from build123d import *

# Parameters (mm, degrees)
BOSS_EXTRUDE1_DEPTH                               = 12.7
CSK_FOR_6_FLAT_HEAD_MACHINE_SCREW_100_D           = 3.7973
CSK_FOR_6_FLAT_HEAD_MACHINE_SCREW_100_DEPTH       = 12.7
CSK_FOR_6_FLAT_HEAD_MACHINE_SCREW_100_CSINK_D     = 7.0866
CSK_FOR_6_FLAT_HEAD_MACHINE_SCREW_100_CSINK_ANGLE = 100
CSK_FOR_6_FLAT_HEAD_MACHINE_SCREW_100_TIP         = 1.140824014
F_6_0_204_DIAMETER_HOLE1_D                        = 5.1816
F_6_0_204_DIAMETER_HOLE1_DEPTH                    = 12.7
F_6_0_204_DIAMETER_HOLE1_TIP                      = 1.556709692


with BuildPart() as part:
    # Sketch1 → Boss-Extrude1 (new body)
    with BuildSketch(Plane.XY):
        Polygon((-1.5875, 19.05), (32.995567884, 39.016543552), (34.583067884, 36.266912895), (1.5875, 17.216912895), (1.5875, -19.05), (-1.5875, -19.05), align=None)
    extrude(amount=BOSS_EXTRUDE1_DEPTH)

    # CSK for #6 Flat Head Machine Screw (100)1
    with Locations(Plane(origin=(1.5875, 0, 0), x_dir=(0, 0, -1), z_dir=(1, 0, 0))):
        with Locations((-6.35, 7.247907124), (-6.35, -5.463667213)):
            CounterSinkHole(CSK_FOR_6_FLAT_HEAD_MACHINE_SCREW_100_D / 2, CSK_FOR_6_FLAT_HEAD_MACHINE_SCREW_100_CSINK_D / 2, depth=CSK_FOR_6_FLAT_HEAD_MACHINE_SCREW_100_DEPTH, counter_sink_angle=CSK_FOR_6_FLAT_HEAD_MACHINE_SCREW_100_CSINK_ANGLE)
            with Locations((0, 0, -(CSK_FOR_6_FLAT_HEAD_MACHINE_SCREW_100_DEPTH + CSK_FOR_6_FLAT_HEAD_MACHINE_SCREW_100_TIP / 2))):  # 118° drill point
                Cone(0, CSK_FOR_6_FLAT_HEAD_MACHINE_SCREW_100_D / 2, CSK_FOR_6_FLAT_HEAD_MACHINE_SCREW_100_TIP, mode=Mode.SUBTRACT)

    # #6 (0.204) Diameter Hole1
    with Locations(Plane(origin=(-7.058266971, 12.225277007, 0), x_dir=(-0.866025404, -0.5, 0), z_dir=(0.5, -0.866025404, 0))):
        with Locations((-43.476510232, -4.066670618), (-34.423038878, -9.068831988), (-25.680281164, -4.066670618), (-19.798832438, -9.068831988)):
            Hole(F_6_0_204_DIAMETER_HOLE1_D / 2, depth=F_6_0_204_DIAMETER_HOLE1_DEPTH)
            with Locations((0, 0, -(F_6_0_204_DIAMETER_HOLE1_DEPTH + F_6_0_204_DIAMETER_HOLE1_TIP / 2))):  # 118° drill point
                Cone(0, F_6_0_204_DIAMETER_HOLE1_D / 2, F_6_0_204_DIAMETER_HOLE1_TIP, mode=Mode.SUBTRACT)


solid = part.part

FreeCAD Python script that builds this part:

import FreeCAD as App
import Part
import Sketcher

V = App.Vector
Q = App.Units.Quantity

doc = App.newDocument("Part")
params = doc.addObject("Spreadsheet::Sheet", "Params")
for row, (alias, value) in enumerate([
    ("sketch1_height", "1.5 in"),
    ("sketch1_length", "1.5 in"),
    ("sketch1_width", "0.125 in"),
    ("sketch1_length2", "0.125 in"),
    ("pad1_length", "0.5 in"),
    ("hole_diameter", "0.1495 in"),
    ("hole_depth", "0.5 in"),
    ("hole_csink_diameter", "0.279 in"),
    ("sketch3_diameter", "0.204 in"),
    ("hole2_diameter", "0.204 in"),
    ("hole2_depth", "0.5 in"),
], start=1):
    params.set(f"A{row}", alias)
    params.set(f"B{row}", "=" + value)
    params.setAlias(f"B{row}", alias)

body = doc.addObject("PartDesign::Body", "Body")

sketch1 = body.newObject("Sketcher::SketchObject", "Sketch")
sketch1.AttachmentSupport = (doc.getObject("XY_Plane"), [""])
sketch1.MapMode = "FlatFace"
sketch1.addGeometry(Part.LineSegment(V(32.995568, 39.016544, 0), V(-1.5875, 19.05, 0)), False)
sketch1.addGeometry(Part.LineSegment(V(-1.5875, 19.05, 0), V(-1.5875, -19.05, 0)), False)
sketch1.addGeometry(Part.LineSegment(V(-1.5875, -19.05, 0), V(1.5875, -19.05, 0)), False)
sketch1.addGeometry(Part.LineSegment(V(1.5875, -19.05, 0), V(1.5875, 17.216913, 0)), False)
sketch1.addGeometry(Part.LineSegment(V(1.5875, 17.216913, 0), V(34.583068, 36.266913, 0)), False)
sketch1.addGeometry(Part.LineSegment(V(34.583068, 36.266913, 0), V(32.995568, 39.016544, 0)), False)
sketch1.addConstraint(Sketcher.Constraint("Coincident", 0, 2, 1, 1))
sketch1.addConstraint(Sketcher.Constraint("Coincident", 1, 2, 2, 1))
sketch1.addConstraint(Sketcher.Constraint("Coincident", 2, 2, 3, 1))
sketch1.addConstraint(Sketcher.Constraint("Coincident", 3, 2, 4, 1))
sketch1.addConstraint(Sketcher.Constraint("Coincident", 4, 2, 5, 1))
sketch1.addConstraint(Sketcher.Constraint("Coincident", 5, 2, 0, 1))
sketch1.addConstraint(Sketcher.Constraint("Vertical", 1))
sketch1.addConstraint(Sketcher.Constraint("Horizontal", 2))
sketch1.addConstraint(Sketcher.Constraint("Vertical", 3))
sketch1.addConstraint(Sketcher.Constraint("Symmetric", 0, 2, 2, 2, -1, 1))
sketch1.addConstraint(Sketcher.Constraint("Parallel", 0, 4))
sketch1.addConstraint(Sketcher.Constraint("Perpendicular", 4, 5))
sketch1.addConstraint(Sketcher.Constraint("DistanceY", 1, 2, 1, 1, Q("1.5 in")))
sketch1.addConstraint(Sketcher.Constraint("Angle", 0, Q("-150 deg")))
sketch1.addConstraint(Sketcher.Constraint("Distance", 4, Q("1.5 in")))
sketch1.addConstraint(Sketcher.Constraint("DistanceX", 2, 1, 2, 2, Q("0.125 in")))
sketch1.addConstraint(Sketcher.Constraint("Distance", 5, Q("0.125 in")))
sketch1.setExpression("Constraints[12]", "Params.sketch1_height")
sketch1.setExpression("Constraints[14]", "Params.sketch1_length")
sketch1.setExpression("Constraints[15]", "Params.sketch1_width")
sketch1.setExpression("Constraints[16]", "Params.sketch1_length2")
pad1 = body.newObject("PartDesign::Pad", "Pad")
pad1.Profile = sketch1
pad1.setExpression("Length", "Params.pad1_length")

sketch2 = body.newObject("Sketcher::SketchObject", "Sketch001")
sketch2.AttachmentSupport = (doc.getObject("YZ_Plane"), [""])
sketch2.MapMode = "FlatFace"
sketch2.AttachmentOffset = App.Placement(V(0, 0, 0.0625 * 25.4), App.Rotation())
sketch2.addGeometry(Part.Circle(V(7.247907, 6.35, 0), V(0, 0, 1), 1.89865), False)
sketch2.addGeometry(Part.Circle(V(-5.463667, 6.35, 0), V(0, 0, 1), 1.89865), False)
sketch2.addConstraint(Sketcher.Constraint("Equal", 0, 1))
sketch2.addConstraint(Sketcher.Constraint("Horizontal", 0, 3, 1, 3))
sketch2.addConstraint(Sketcher.Constraint("Diameter", 0, Q("0.1495 in")))
sketch2.addConstraint(Sketcher.Constraint("DistanceY", -1, 1, 0, 3, Q("0.25 in")))
sketch2.addConstraint(Sketcher.Constraint("DistanceX", -1, 1, 0, 3, Q("7.247907 mm")))
sketch2.addConstraint(Sketcher.Constraint("DistanceX", 1, 3, -1, 1, Q("5.463667 mm")))
doc.recompute()
hole = body.newObject("PartDesign::Hole", "Hole")
hole.Profile = sketch2
hole.ThreadType = "None"
hole.setExpression("Diameter", "Params.hole_diameter")
hole.DepthType = "Dimension"
hole.setExpression("Depth", "Params.hole_depth")
hole.DrillPoint = "Angled"
hole.DrillPointAngle = 118
hole.HoleCutType = "Countersink"
hole.setExpression("HoleCutDiameter", "Params.hole_csink_diameter")
hole.HoleCutCountersinkAngle = 100

sketch3 = body.newObject("Sketcher::SketchObject", "Sketch002")
sketch3.Placement = App.Placement(V(-7.058267, 12.225277, 0), App.Rotation(V(-0.866025404, -0.5, 0), V(0, 0, -1), V(0.5, -0.866025404, 0), "ZXY"))
sketch3.addGeometry(Part.Circle(V(-43.47651, -4.066671, 0), V(0, 0, 1), 2.5908), False)
sketch3.addGeometry(Part.Circle(V(-34.423039, -9.068832, 0), V(0, 0, 1), 2.5908), False)
sketch3.addGeometry(Part.Circle(V(-25.680281, -4.066671, 0), V(0, 0, 1), 2.5908), False)
sketch3.addGeometry(Part.Circle(V(-19.798832, -9.068832, 0), V(0, 0, 1), 2.5908), False)
sketch3.addConstraint(Sketcher.Constraint("Equal", 0, 1))
sketch3.addConstraint(Sketcher.Constraint("Equal", 1, 2))
sketch3.addConstraint(Sketcher.Constraint("Equal", 2, 3))
sketch3.addConstraint(Sketcher.Constraint("Horizontal", 0, 3, 2, 3))
sketch3.addConstraint(Sketcher.Constraint("Horizontal", 1, 3, 3, 3))
sketch3.addConstraint(Sketcher.Constraint("Diameter", 0, Q("0.204 in")))
sketch3.addConstraint(Sketcher.Constraint("DistanceX", 0, 3, -1, 1, Q("43.47651 mm")))
sketch3.addConstraint(Sketcher.Constraint("DistanceY", 0, 3, -1, 1, Q("4.066671 mm")))
sketch3.addConstraint(Sketcher.Constraint("DistanceX", 1, 3, -1, 1, Q("34.423039 mm")))
sketch3.addConstraint(Sketcher.Constraint("DistanceY", 1, 3, -1, 1, Q("9.068832 mm")))
sketch3.addConstraint(Sketcher.Constraint("DistanceX", 2, 3, -1, 1, Q("25.680281 mm")))
sketch3.addConstraint(Sketcher.Constraint("DistanceX", 2, 3, 3, 3, Q("5.881449 mm")))
sketch3.setExpression("Constraints[5]", "Params.sketch3_diameter")
doc.recompute()
hole2 = body.newObject("PartDesign::Hole", "Hole001")
hole2.Profile = sketch3
hole2.ThreadType = "None"
hole2.setExpression("Diameter", "Params.hole2_diameter")
hole2.DepthType = "Dimension"
hole2.setExpression("Depth", "Params.hole2_depth")
hole2.DrillPoint = "Angled"
hole2.DrillPointAngle = 118

doc.recompute()
